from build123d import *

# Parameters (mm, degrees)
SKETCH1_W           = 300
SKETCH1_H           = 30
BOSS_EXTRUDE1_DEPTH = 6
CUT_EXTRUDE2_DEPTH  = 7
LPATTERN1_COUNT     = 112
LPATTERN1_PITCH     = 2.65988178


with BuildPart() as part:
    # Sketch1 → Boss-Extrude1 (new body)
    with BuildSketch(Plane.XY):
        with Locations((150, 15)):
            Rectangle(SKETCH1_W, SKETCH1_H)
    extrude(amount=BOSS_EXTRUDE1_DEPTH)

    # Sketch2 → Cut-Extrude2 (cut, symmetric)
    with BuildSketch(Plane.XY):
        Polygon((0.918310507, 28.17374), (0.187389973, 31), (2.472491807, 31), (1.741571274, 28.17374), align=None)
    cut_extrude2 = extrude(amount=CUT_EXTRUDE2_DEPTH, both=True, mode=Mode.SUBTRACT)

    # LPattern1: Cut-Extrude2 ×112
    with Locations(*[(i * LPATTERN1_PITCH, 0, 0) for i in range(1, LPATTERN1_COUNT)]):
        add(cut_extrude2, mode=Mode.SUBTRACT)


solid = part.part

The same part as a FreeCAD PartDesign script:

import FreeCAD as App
import Part
import Sketcher
from FreeCAD import Vector
Q = App.Units.Quantity


def add_polygon(sketch, points):
    """Adds a closed chain of lines whose ends are joined by coincident constraints."""
    first, n = sketch.GeometryCount, len(points)
    for a, b in zip(points, points[1:] + points[:1]):
        sketch.addGeometry(Part.LineSegment(App.Vector(*a, 0), App.Vector(*b, 0)), False)
    for i in range(n):
        sketch.addConstraint(Sketcher.Constraint("Coincident", first + i, 2, first + (i + 1) % n, 1))

doc = App.newDocument("Part")
body = doc.addObject("PartDesign::Body", "Body")

# Sketch on XY plane
sketch1 = body.newObject("Sketcher::SketchObject", "Sketch")
sketch1.AttachmentSupport = (doc.getObject("XY_Plane"), [""])
sketch1.MapMode = "FlatFace"
add_polygon(sketch1, [(0, 30), (0, 0), (300, 0), (300, 30)])  # lines 0-3
sketch1.addConstraint([
    Sketcher.Constraint("Vertical", 0),
    Sketcher.Constraint("Horizontal", 1),
    Sketcher.Constraint("Vertical", 2),
    Sketcher.Constraint("Horizontal", 3),
    Sketcher.Constraint("Coincident", 0, 2, -1, 1),
    Sketcher.Constraint("DistanceX", 1, 1, 1, 2, Q("300 mm")),
    Sketcher.Constraint("DistanceY", 0, 2, 0, 1, Q("30 mm")),
])
pad1 = body.newObject("PartDesign::Pad", "Pad")
pad1.Profile = sketch1
pad1.Length = 6

# Sketch on XY plane
sketch2 = body.newObject("Sketcher::SketchObject", "Sketch001")
sketch2.AttachmentSupport = (doc.getObject("XY_Plane"), [""])
sketch2.MapMode = "FlatFace"
add_polygon(sketch2, [(0.2, 31), (0.9, 28.2), (1.7, 28.2), (2.5, 31)])  # lines 0-3
sketch2.addConstraint([
    Sketcher.Constraint("Horizontal", 1),
    Sketcher.Constraint("Horizontal", 3),
    Sketcher.Constraint("Equal", 0, 2),
    Sketcher.Constraint("DistanceY", -1, 1, 2, 2, Q("31 mm")),
    Sketcher.Constraint("Angle", 0, Q("-75.5 deg")),
    Sketcher.Constraint("DistanceX", 3, 2, 3, 1, Q("2.285102 mm")),
    Sketcher.Constraint("DistanceX", 1, 1, 1, 2, Q("0.823261 mm")),
    Sketcher.Constraint("DistanceX", -1, 1, 0, 2, Q("0.918311 mm")),
])
pocket1 = body.newObject("PartDesign::Pocket", "Pocket")
pocket1.Profile = sketch2
pocket1.Length = 14
pocket1.Midplane = True
doc.recompute()

linearpattern = body.newObject("PartDesign::LinearPattern", "LinearPattern")
linearpattern.Originals = [pocket1]
linearpattern.Direction = (doc.getObject("X_Axis"), [""])
linearpattern.Mode = "offset"
linearpattern.Offset = 2.659882
linearpattern.Occurrences = 112
body.Tip = linearpattern

doc.recompute()
